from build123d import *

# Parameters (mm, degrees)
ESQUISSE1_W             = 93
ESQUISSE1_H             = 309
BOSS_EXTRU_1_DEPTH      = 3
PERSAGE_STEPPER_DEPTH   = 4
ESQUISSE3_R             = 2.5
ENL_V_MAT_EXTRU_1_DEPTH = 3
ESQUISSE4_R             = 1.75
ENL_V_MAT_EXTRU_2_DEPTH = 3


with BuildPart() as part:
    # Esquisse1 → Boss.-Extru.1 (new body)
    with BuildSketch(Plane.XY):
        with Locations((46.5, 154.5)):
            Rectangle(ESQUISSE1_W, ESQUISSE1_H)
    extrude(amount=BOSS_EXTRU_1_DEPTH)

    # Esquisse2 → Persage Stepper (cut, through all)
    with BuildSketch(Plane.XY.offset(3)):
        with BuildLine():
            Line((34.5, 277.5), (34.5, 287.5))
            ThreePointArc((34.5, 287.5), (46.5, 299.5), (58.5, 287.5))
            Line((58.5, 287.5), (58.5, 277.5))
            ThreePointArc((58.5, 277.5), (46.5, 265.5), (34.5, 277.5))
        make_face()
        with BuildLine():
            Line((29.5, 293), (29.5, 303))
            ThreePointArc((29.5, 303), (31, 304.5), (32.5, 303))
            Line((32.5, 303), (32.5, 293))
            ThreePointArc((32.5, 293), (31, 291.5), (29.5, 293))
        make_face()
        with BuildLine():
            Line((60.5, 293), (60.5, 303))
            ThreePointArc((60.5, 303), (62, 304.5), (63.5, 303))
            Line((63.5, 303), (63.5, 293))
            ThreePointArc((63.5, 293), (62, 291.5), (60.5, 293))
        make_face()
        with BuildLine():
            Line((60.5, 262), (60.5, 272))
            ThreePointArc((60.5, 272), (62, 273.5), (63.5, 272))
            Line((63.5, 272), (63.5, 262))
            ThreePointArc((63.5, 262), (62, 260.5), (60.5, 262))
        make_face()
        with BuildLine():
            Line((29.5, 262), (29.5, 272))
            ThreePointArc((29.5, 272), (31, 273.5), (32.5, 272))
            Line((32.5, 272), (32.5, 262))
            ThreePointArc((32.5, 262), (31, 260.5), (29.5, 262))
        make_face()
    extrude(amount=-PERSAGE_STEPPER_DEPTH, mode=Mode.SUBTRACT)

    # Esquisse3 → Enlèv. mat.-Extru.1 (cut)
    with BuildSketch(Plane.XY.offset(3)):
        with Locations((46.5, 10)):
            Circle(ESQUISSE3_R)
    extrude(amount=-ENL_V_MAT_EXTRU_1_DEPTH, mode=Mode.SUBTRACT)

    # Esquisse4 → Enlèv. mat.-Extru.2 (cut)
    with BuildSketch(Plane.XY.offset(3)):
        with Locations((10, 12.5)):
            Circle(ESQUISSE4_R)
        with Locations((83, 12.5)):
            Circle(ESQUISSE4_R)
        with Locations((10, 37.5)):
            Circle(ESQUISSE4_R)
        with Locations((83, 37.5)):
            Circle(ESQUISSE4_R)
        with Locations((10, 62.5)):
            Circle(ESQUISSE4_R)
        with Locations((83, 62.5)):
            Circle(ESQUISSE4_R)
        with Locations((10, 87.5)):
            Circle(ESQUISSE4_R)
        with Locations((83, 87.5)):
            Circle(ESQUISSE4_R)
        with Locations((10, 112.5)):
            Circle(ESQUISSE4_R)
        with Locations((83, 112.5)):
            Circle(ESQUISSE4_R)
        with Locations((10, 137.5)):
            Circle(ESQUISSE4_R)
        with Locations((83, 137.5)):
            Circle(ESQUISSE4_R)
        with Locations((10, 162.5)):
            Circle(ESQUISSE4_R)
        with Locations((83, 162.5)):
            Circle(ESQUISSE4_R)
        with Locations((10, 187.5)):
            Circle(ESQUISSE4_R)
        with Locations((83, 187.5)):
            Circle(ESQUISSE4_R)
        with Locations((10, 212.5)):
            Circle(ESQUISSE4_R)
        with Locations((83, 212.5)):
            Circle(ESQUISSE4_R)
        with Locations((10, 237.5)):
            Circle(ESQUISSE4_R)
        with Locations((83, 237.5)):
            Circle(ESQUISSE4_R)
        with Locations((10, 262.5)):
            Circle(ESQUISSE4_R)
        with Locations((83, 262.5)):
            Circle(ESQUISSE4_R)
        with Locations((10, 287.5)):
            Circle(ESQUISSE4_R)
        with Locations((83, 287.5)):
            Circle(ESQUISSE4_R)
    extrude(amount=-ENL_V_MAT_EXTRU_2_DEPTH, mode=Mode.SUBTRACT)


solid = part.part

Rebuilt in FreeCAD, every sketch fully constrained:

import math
import FreeCAD as App
import Part
import Sketcher
from FreeCAD import Vector

doc = App.newDocument("Part")
body = doc.addObject("PartDesign::Body", "Body")

sketch1 = doc.addObject("Sketcher::SketchObject", "Sketch")
body.addObject(sketch1)
sketch1.AttachmentSupport = (doc.XY_Plane, [""])
sketch1.MapMode = "FlatFace"
sketch1.addGeometry(Part.LineSegment(Vector(0, 309, 0), Vector(0, 0, 0)), False)
sketch1.addGeometry(Part.LineSegment(Vector(0, 0, 0), Vector(93, 0, 0)), False)
sketch1.addGeometry(Part.LineSegment(Vector(93, 0, 0), Vector(93, 309, 0)), False)
sketch1.addGeometry(Part.LineSegment(Vector(93, 309, 0), Vector(0, 309, 0)), False)
sketch1.addConstraint(Sketcher.Constraint("Coincident", 0, 2, 1, 1))
sketch1.addConstraint(Sketcher.Constraint("Coincident", 1, 2, 2, 1))
sketch1.addConstraint(Sketcher.Constraint("Coincident", 2, 2, 3, 1))
sketch1.addConstraint(Sketcher.Constraint("Coincident", 3, 2, 0, 1))
sketch1.addConstraint(Sketcher.Constraint("Vertical", 0))
sketch1.addConstraint(Sketcher.Constraint("Horizontal", 1))
sketch1.addConstraint(Sketcher.Constraint("Vertical", 2))
sketch1.addConstraint(Sketcher.Constraint("Horizontal", 3))
sketch1.addConstraint(Sketcher.Constraint("Coincident", 0, 2, -1, 1))
sketch1.addConstraint(Sketcher.Constraint("DistanceX", 1, 1, 1, 2, 93.0))
sketch1.addConstraint(Sketcher.Constraint("DistanceY", 0, 2, 0, 1, 309.0))
pad1 = doc.addObject("PartDesign::Pad", "Pad")
body.addObject(pad1)
pad1.Profile = sketch1
pad1.Length = 3

sketch2 = doc.addObject("Sketcher::SketchObject", "Sketch001")
body.addObject(sketch2)
sketch2.AttachmentSupport = (doc.XY_Plane, [""])
sketch2.MapMode = "FlatFace"
sketch2.AttachmentOffset = App.Placement(Vector(0, 0, 3), App.Rotation())
sketch2.addGeometry(Part.LineSegment(Vector(34.5, 287.5, 0), Vector(34.5, 277.5, 0)), False)
sketch2.addGeometry(Part.ArcOfCircle(Part.Circle(Vector(46.5, 277.5, 0), Vector(0, 0, 1), 12), math.radians(180), math.radians(360)), False)
sketch2.addGeometry(Part.LineSegment(Vector(58.5, 277.5, 0), Vector(58.5, 287.5, 0)), False)
sketch2.addGeometry(Part.ArcOfCircle(Part.Circle(Vector(46.5, 287.5, 0), Vector(0, 0, 1), 12), math.radians(0), math.radians(180)), False)
sketch2.addGeometry(Part.LineSegment(Vector(29.5, 303, 0), Vector(29.5, 293, 0)), False)
sketch2.addGeometry(Part.ArcOfCircle(Part.Circle(Vector(31, 293, 0), Vector(0, 0, 1), 1.5), math.radians(180), math.radians(360)), False)
sketch2.addGeometry(Part.LineSegment(Vector(32.5, 293, 0), Vector(32.5, 303, 0)), False)
sketch2.addGeometry(Part.ArcOfCircle(Part.Circle(Vector(31, 303, 0), Vector(0, 0, 1), 1.5), math.radians(0), math.radians(180)), False)
sketch2.addGeometry(Part.LineSegment(Vector(60.5, 303, 0), Vector(60.5, 293, 0)), False)
sketch2.addGeometry(Part.ArcOfCircle(Part.Circle(Vector(62, 293, 0), Vector(0, 0, 1), 1.5), math.radians(180), math.radians(360)), False)
sketch2.addGeometry(Part.LineSegment(Vector(63.5, 293, 0), Vector(63.5, 303, 0)), False)
sketch2.addGeometry(Part.ArcOfCircle(Part.Circle(Vector(62, 303, 0), Vector(0, 0, 1), 1.5), math.radians(0), math.radians(180)), False)
sketch2.addGeometry(Part.LineSegment(Vector(60.5, 272, 0), Vector(60.5, 262, 0)), False)
sketch2.addGeometry(Part.ArcOfCircle(Part.Circle(Vector(62, 262, 0), Vector(0, 0, 1), 1.5), math.radians(180), math.radians(360)), False)
sketch2.addGeometry(Part.LineSegment(Vector(63.5, 262, 0), Vector(63.5, 272, 0)), False)
sketch2.addGeometry(Part.ArcOfCircle(Part.Circle(Vector(62, 272, 0), Vector(0, 0, 1), 1.5), math.radians(0), math.radians(180)), False)
sketch2.addGeometry(Part.LineSegment(Vector(29.5, 272, 0), Vector(29.5, 262, 0)), False)
sketch2.addGeometry(Part.ArcOfCircle(Part.Circle(Vector(31, 262, 0), Vector(0, 0, 1), 1.5), math.radians(180), math.radians(360)), False)
sketch2.addGeometry(Part.LineSegment(Vector(32.5, 262, 0), Vector(32.5, 272, 0)), False)
sketch2.addGeometry(Part.ArcOfCircle(Part.Circle(Vector(31, 272, 0), Vector(0, 0, 1), 1.5), math.radians(0), math.radians(180)), False)
sketch2.addConstraint(Sketcher.Constraint("Tangent", 0, 2, 1, 1))
sketch2.addConstraint(Sketcher.Constraint("Tangent", 1, 2, 2, 1))
sketch2.addConstraint(Sketcher.Constraint("Tangent", 2, 2, 3, 1))
sketch2.addConstraint(Sketcher.Constraint("Tangent", 3, 2, 0, 1))
sketch2.addConstraint(Sketcher.Constraint("Tangent", 4, 2, 5, 1))
sketch2.addConstraint(Sketcher.Constraint("Tangent", 5, 2, 6, 1))
sketch2.addConstraint(Sketcher.Constraint("Tangent", 6, 2, 7, 1))
sketch2.addConstraint(Sketcher.Constraint("Tangent", 7, 2, 4, 1))
sketch2.addConstraint(Sketcher.Constraint("Tangent", 8, 2, 9, 1))
sketch2.addConstraint(Sketcher.Constraint("Tangent", 9, 2, 10, 1))
sketch2.addConstraint(Sketcher.Constraint("Tangent", 10, 2, 11, 1))
sketch2.addConstraint(Sketcher.Constraint("Tangent", 11, 2, 8, 1))
sketch2.addConstraint(Sketcher.Constraint("Tangent", 12, 2, 13, 1))
sketch2.addConstraint(Sketcher.Constraint("Tangent", 13, 2, 14, 1))
sketch2.addConstraint(Sketcher.Constraint("Tangent", 14, 2, 15, 1))
sketch2.addConstraint(Sketcher.Constraint("Tangent", 15, 2, 12, 1))
sketch2.addConstraint(Sketcher.Constraint("Tangent", 16, 2, 17, 1))
sketch2.addConstraint(Sketcher.Constraint("Tangent", 17, 2, 18, 1))
sketch2.addConstraint(Sketcher.Constraint("Tangent", 18, 2, 19, 1))
sketch2.addConstraint(Sketcher.Constraint("Tangent", 19, 2, 16, 1))
sketch2.addConstraint(Sketcher.Constraint("Vertical", 0))
sketch2.addConstraint(Sketcher.Constraint("Vertical", 2))
sketch2.addConstraint(Sketcher.Constraint("Vertical", 4))
sketch2.addConstraint(Sketcher.Constraint("Vertical", 6))
sketch2.addConstraint(Sketcher.Constraint("Vertical", 8))
sketch2.addConstraint(Sketcher.Constraint("Vertical", 10))
sketch2.addConstraint(Sketcher.Constraint("Vertical", 12))
sketch2.addConstraint(Sketcher.Constraint("Vertical", 14))
sketch2.addConstraint(Sketcher.Constraint("Vertical", 16))
sketch2.addConstraint(Sketcher.Constraint("Vertical", 18))
sketch2.addConstraint(Sketcher.Constraint("Equal", 7, 9))
sketch2.addConstraint(Sketcher.Constraint("Equal", 11, 13))
sketch2.addConstraint(Sketcher.Constraint("Equal", 15, 17))
sketch2.addConstraint(Sketcher.Constraint("Horizontal", 5, 3, 9, 3))
sketch2.addConstraint(Sketcher.Constraint("Horizontal", 7, 3, 11, 3))
sketch2.addConstraint(Sketcher.Constraint("Horizontal", 13, 3, 17, 3))
sketch2.addConstraint(Sketcher.Constraint("Horizontal", 15, 3, 19, 3))
sketch2.addConstraint(Sketcher.Constraint("Vertical", 11, 3, 13, 3))
sketch2.addConstraint(Sketcher.Constraint("Vertical", 7, 3, 17, 3))
sketch2.addConstraint(Sketcher.Constraint("Equal", 2, 4))
sketch2.addConstraint(Sketcher.Constraint("Equal", 10, 12))
sketch2.addConstraint(Sketcher.Constraint("Radius", 1, 12.0))
sketch2.addConstraint(Sketcher.Constraint("Radius", 5, 1.5))
sketch2.addConstraint(Sketcher.Constraint("DistanceY", 0, 2, 0, 1, 10.0))
sketch2.addConstraint(Sketcher.Constraint("DistanceX", -1, 1, 5, 3, 31.0))
sketch2.addConstraint(Sketcher.Constraint("DistanceY", -1, 1, 5, 3, 293.0))
sketch2.addConstraint(Sketcher.Constraint("DistanceX", -1, 1, 9, 3, 62.0))
sketch2.addConstraint(Sketcher.Constraint("DistanceY", -1, 1, 13, 3, 262.0))
sketch2.addConstraint(Sketcher.Constraint("DistanceX", 4, 2, 3, 2, 5.0))
sketch2.addConstraint(Sketcher.Constraint("DistanceY", -1, 1, 1, 3, 277.5))
pocket1 = doc.addObject("PartDesign::Pocket", "Pocket")
body.addObject(pocket1)
pocket1.Profile = sketch2
pocket1.Type = "ThroughAll"

sketch3 = doc.addObject("Sketcher::SketchObject", "Sketch002")
body.addObject(sketch3)
sketch3.AttachmentSupport = (doc.XY_Plane, [""])
sketch3.MapMode = "FlatFace"
sketch3.AttachmentOffset = App.Placement(Vector(0, 0, 3), App.Rotation())
sketch3.addGeometry(Part.Circle(Vector(46.5, 10, 0), Vector(0, 0, 1), 2.5), False)
sketch3.addConstraint(Sketcher.Constraint("Diameter", 0, 5.0))
sketch3.addConstraint(Sketcher.Constraint("DistanceY", -1, 1, 0, 3, 10.0))
sketch3.addConstraint(Sketcher.Constraint("DistanceX", -1, 1, 0, 3, 46.5))
pocket2 = doc.addObject("PartDesign::Pocket", "Pocket001")
body.addObject(pocket2)
pocket2.Profile = sketch3
pocket2.Length = 3

sketch4 = doc.addObject("Sketcher::SketchObject", "Sketch003")
body.addObject(sketch4)
sketch4.AttachmentSupport = (doc.XY_Plane, [""])
sketch4.MapMode = "FlatFace"
sketch4.AttachmentOffset = App.Placement(Vector(0, 0, 3), App.Rotation())
sketch4.addGeometry(Part.Circle(Vector(10, 12.5, 0), Vector(0, 0, 1), 1.8), False)
sketch4.addGeometry(Part.Circle(Vector(83, 12.5, 0), Vector(0, 0, 1), 1.8), False)
sketch4.addGeometry(Part.Circle(Vector(10, 37.5, 0), Vector(0, 0, 1), 1.8), False)
sketch4.addGeometry(Part.Circle(Vector(83, 37.5, 0), Vector(0, 0, 1), 1.8), False)
sketch4.addGeometry(Part.Circle(Vector(10, 62.5, 0), Vector(0, 0, 1), 1.8), False)
sketch4.addGeometry(Part.Circle(Vector(83, 62.5, 0), Vector(0, 0, 1), 1.8), False)
sketch4.addGeometry(Part.Circle(Vector(10, 87.5, 0), Vector(0, 0, 1), 1.8), False)
sketch4.addGeometry(Part.Circle(Vector(83, 87.5, 0), Vector(0, 0, 1), 1.8), False)
sketch4.addGeometry(Part.Circle(Vector(10, 112.5, 0), Vector(0, 0, 1), 1.8), False)
sketch4.addGeometry(Part.Circle(Vector(83, 112.5, 0), Vector(0, 0, 1), 1.8), False)
sketch4.addGeometry(Part.Circle(Vector(10, 137.5, 0), Vector(0, 0, 1), 1.8), False)
sketch4.addGeometry(Part.Circle(Vector(83, 137.5, 0), Vector(0, 0, 1), 1.8), False)
sketch4.addGeometry(Part.Circle(Vector(10, 162.5, 0), Vector(0, 0, 1), 1.8), False)
sketch4.addGeometry(Part.Circle(Vector(83, 162.5, 0), Vector(0, 0, 1), 1.8), False)
sketch4.addGeometry(Part.Circle(Vector(10, 187.5, 0), Vector(0, 0, 1), 1.8), False)
sketch4.addGeometry(Part.Circle(Vector(83, 187.5, 0), Vector(0, 0, 1), 1.8), False)
sketch4.addGeometry(Part.Circle(Vector(10, 212.5, 0), Vector(0, 0, 1), 1.8), False)
sketch4.addGeometry(Part.Circle(Vector(83, 212.5, 0), Vector(0, 0, 1), 1.8), False)
sketch4.addGeometry(Part.Circle(Vector(10, 237.5, 0), Vector(0, 0, 1), 1.8), False)
sketch4.addGeometry(Part.Circle(Vector(83, 237.5, 0), Vector(0, 0, 1), 1.8), False)
sketch4.addGeometry(Part.Circle(Vector(10, 262.5, 0), Vector(0, 0, 1), 1.8), False)
sketch4.addGeometry(Part.Circle(Vector(83, 262.5, 0), Vector(0, 0, 1), 1.8), False)
sketch4.addGeometry(Part.Circle(Vector(10, 287.5, 0), Vector(0, 0, 1), 1.8), False)
sketch4.addGeometry(Part.Circle(Vector(83, 287.5, 0), Vector(0, 0, 1), 1.8), False)
sketch4.addConstraint(Sketcher.Constraint("Equal", 0, 1))
sketch4.addConstraint(Sketcher.Constraint("Equal", 1, 2))
sketch4.addConstraint(Sketcher.Constraint("Equal", 2, 3))
sketch4.addConstraint(Sketcher.Constraint("Equal", 3, 4))
sketch4.addConstraint(Sketcher.Constraint("Equal", 4, 5))
sketch4.addConstraint(Sketcher.Constraint("Equal", 5, 6))
sketch4.addConstraint(Sketcher.Constraint("Equal", 6, 7))
sketch4.addConstraint(Sketcher.Constraint("Equal", 7, 8))
sketch4.addConstraint(Sketcher.Constraint("Equal", 8, 9))
sketch4.addConstraint(Sketcher.Constraint("Equal", 9, 10))
sketch4.addConstraint(Sketcher.Constraint("Equal", 10, 11))
sketch4.addConstraint(Sketcher.Constraint("Equal", 11, 12))
sketch4.addConstraint(Sketcher.Constraint("Equal", 12, 13))
sketch4.addConstraint(Sketcher.Constraint("Equal", 13, 14))
sketch4.addConstraint(Sketcher.Constraint("Equal", 14, 15))
sketch4.addConstraint(Sketcher.Constraint("Equal", 15, 16))
sketch4.addConstraint(Sketcher.Constraint("Equal", 16, 17))
sketch4.addConstraint(Sketcher.Constraint("Equal", 17, 18))
sketch4.addConstraint(Sketcher.Constraint("Equal", 18, 19))
sketch4.addConstraint(Sketcher.Constraint("Equal", 19, 20))
sketch4.addConstraint(Sketcher.Constraint("Equal", 20, 21))
sketch4.addConstraint(Sketcher.Constraint("Equal", 21, 22))
sketch4.addConstraint(Sketcher.Constraint("Equal", 22, 23))
sketch4.addConstraint(Sketcher.Constraint("Horizontal", 0, 3, 1, 3))
sketch4.addConstraint(Sketcher.Constraint("Horizontal", 2, 3, 3, 3))
sketch4.addConstraint(Sketcher.Constraint("Horizontal", 4, 3, 5, 3))
sketch4.addConstraint(Sketcher.Constraint("Horizontal", 6, 3, 7, 3))
sketch4.addConstraint(Sketcher.Constraint("Horizontal", 8, 3, 9, 3))
sketch4.addConstraint(Sketcher.Constraint("Horizontal", 10, 3, 11, 3))
sketch4.addConstraint(Sketcher.Constraint("Horizontal", 12, 3, 13, 3))
sketch4.addConstraint(Sketcher.Constraint("Horizontal", 14, 3, 15, 3))
sketch4.addConstraint(Sketcher.Constraint("Horizontal", 16, 3, 17, 3))
sketch4.addConstraint(Sketcher.Constraint("Horizontal", 18, 3, 19, 3))
sketch4.addConstraint(Sketcher.Constraint("Horizontal", 20, 3, 21, 3))
sketch4.addConstraint(Sketcher.Constraint("Horizontal", 22, 3, 23, 3))
sketch4.addConstraint(Sketcher.Constraint("Vertical", 0, 3, 2, 3))
sketch4.addConstraint(Sketcher.Constraint("Vertical", 1, 3, 3, 3))
sketch4.addConstraint(Sketcher.Constraint("Vertical", 2, 3, 4, 3))
sketch4.addConstraint(Sketcher.Constraint("Vertical", 3, 3, 5, 3))
sketch4.addConstraint(Sketcher.Constraint("Vertical", 4, 3, 6, 3))
sketch4.addConstraint(Sketcher.Constraint("Vertical", 5, 3, 7, 3))
sketch4.addConstraint(Sketcher.Constraint("Vertical", 6, 3, 8, 3))
sketch4.addConstraint(Sketcher.Constraint("Vertical", 7, 3, 9, 3))
sketch4.addConstraint(Sketcher.Constraint("Vertical", 8, 3, 10, 3))
sketch4.addConstraint(Sketcher.Constraint("Vertical", 9, 3, 11, 3))
sketch4.addConstraint(Sketcher.Constraint("Vertical", 10, 3, 12, 3))
sketch4.addConstraint(Sketcher.Constraint("Vertical", 11, 3, 13, 3))
sketch4.addConstraint(Sketcher.Constraint("Vertical", 12, 3, 14, 3))
sketch4.addConstraint(Sketcher.Constraint("Vertical", 13, 3, 15, 3))
sketch4.addConstraint(Sketcher.Constraint("Vertical", 14, 3, 16, 3))
sketch4.addConstraint(Sketcher.Constraint("Vertical", 15, 3, 17, 3))
sketch4.addConstraint(Sketcher.Constraint("Vertical", 16, 3, 18, 3))
sketch4.addConstraint(Sketcher.Constraint("Vertical", 17, 3, 19, 3))
sketch4.addConstraint(Sketcher.Constraint("Vertical", 18, 3, 20, 3))
sketch4.addConstraint(Sketcher.Constraint("Vertical", 19, 3, 21, 3))
sketch4.addConstraint(Sketcher.Constraint("Vertical", 20, 3, 22, 3))
sketch4.addConstraint(Sketcher.Constraint("Vertical", 21, 3, 23, 3))
sketch4.addConstraint(Sketcher.Constraint("Diameter", 0, 3.5))
sketch4.addConstraint(Sketcher.Constraint("DistanceX", -1, 1, 0, 3, 10.0))
sketch4.addConstraint(Sketcher.Constraint("DistanceX", -1, 1, 1, 3, 83.0))
sketch4.addConstraint(Sketcher.Constraint("DistanceY", 0, 3, 2, 3, 25.0))
sketch4.addConstraint(Sketcher.Constraint("DistanceY", 2, 3, 4, 3, 25.0))
sketch4.addConstraint(Sketcher.Constraint("DistanceY", 4, 3, 6, 3, 25.0))
sketch4.addConstraint(Sketcher.Constraint("DistanceY", 6, 3, 8, 3, 25.0))
sketch4.addConstraint(Sketcher.Constraint("DistanceY", 8, 3, 10, 3, 25.0))
sketch4.addConstraint(Sketcher.Constraint("DistanceY", 10, 3, 12, 3, 25.0))
sketch4.addConstraint(Sketcher.Constraint("DistanceY", 12, 3, 14, 3, 25.0))
sketch4.addConstraint(Sketcher.Constraint("DistanceY", 14, 3, 16, 3, 25.0))
sketch4.addConstraint(Sketcher.Constraint("DistanceY", 16, 3, 18, 3, 25.0))
sketch4.addConstraint(Sketcher.Constraint("DistanceY", 18, 3, 20, 3, 25.0))
sketch4.addConstraint(Sketcher.Constraint("DistanceY", 20, 3, 22, 3, 25.0))
sketch4.addConstraint(Sketcher.Constraint("DistanceY", -1, 1, 0, 3, 12.5))
pocket3 = doc.addObject("PartDesign::Pocket", "Pocket002")
body.addObject(pocket3)
pocket3.Profile = sketch4
pocket3.Length = 3

doc.recompute()
